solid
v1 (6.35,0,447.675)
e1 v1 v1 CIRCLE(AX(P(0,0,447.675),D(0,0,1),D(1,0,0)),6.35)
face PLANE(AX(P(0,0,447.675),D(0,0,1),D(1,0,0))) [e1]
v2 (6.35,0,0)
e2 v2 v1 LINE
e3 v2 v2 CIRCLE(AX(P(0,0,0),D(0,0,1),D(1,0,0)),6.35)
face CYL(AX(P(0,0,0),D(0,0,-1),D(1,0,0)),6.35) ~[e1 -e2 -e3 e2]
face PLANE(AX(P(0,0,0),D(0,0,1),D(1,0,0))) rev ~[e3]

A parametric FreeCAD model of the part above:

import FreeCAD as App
import Part
import Sketcher
from FreeCAD import Vector
Q = App.Units.Quantity

doc = App.newDocument("Part")
body = doc.addObject("PartDesign::Body", "Body")

# Sketch on XY plane
sketch1 = doc.addObject("Sketcher::SketchObject", "Sketch")
body.addObject(sketch1)
sketch1.AttachmentSupport = (doc.XY_Plane, [""])
sketch1.MapMode = "FlatFace"
sketch1.addGeometry(Part.Circle(Vector(0, 0, 0), Vector(0, 0, 1), 6.35), False)
sketch1.addConstraint(Sketcher.Constraint("Coincident", 0, 3, -1, 1))
sketch1.addConstraint(Sketcher.Constraint("Diameter", 0, Q("0.5 in")))
pad1 = doc.addObject("PartDesign::Pad", "Pad")
body.addObject(pad1)
pad1.Profile = sketch1
pad1.Length = Q("17.625 in")

doc.recompute()
